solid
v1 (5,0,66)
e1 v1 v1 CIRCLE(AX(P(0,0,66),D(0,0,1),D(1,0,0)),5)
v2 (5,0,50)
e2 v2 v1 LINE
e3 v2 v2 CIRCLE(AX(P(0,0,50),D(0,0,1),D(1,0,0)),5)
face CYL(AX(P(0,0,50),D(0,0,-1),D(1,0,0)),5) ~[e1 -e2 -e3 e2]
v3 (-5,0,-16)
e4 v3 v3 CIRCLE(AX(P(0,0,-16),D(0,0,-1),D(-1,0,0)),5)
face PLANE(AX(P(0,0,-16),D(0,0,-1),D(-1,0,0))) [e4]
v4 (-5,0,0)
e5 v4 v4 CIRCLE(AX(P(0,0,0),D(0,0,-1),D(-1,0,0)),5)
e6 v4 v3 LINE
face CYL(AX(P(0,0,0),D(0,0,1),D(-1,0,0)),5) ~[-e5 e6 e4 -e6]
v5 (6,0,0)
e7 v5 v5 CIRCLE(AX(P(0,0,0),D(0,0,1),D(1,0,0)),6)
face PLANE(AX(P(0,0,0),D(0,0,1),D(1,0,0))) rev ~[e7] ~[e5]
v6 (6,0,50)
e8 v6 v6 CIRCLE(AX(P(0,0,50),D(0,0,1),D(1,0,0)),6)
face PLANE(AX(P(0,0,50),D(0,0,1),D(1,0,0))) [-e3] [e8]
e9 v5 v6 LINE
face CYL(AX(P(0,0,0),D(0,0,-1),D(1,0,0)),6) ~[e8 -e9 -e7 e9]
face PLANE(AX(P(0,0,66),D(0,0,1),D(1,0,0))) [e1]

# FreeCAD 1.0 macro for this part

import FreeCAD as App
import Part
import Sketcher
Q = App.Units.Quantity

doc = App.newDocument("Part")
body = doc.addObject("PartDesign::Body", "Body")

# Sketch on XY plane
sketch1 = body.newObject("Sketcher::SketchObject", "Sketch")
sketch1.AttachmentSupport = (doc.getObject("XY_Plane"), [""])
sketch1.MapMode = "FlatFace"
sketch1.addGeometry(Part.Circle(App.Vector(0, 0, 0), App.Vector(0, 0, 1), 6), False)
sketch1.addConstraint([
    Sketcher.Constraint("Coincident", 0, 3, -1, 1),
    Sketcher.Constraint("Diameter", 0, Q("12 mm")),
])
pad1 = body.newObject("PartDesign::Pad", "Pad")
pad1.Profile = sketch1
pad1.Length = 50

# Sketch on XY plane
sketch2 = body.newObject("Sketcher::SketchObject", "Sketch001")
sketch2.AttachmentSupport = (doc.getObject("XY_Plane"), [""])
sketch2.MapMode = "FlatFace"
sketch2.AttachmentOffset = App.Placement(App.Vector(0, 0, 50), App.Rotation())
sketch2.addGeometry(Part.Circle(App.Vector(0, 0, 0), App.Vector(0, 0, 1), 5), False)
sketch2.addConstraint([
    Sketcher.Constraint("Coincident", 0, 3, -1, 1),
    Sketcher.Constraint("Diameter", 0, Q("10 mm")),
])
pad2 = body.newObject("PartDesign::Pad", "Pad001")
pad2.Profile = sketch2
pad2.Length = 16

# Sketch on XY plane
sketch3 = body.newObject("Sketcher::SketchObject", "Sketch002")
sketch3.AttachmentSupport = (doc.getObject("XY_Plane"), [""])
sketch3.MapMode = "FlatFace"
sketch3.addGeometry(Part.Circle(App.Vector(0, 0, 0), App.Vector(0, 0, 1), 5), False)
sketch3.addConstraint([
    Sketcher.Constraint("Coincident", 0, 3, -1, 1),
    Sketcher.Constraint("Diameter", 0, Q("10 mm")),
])
pad3 = body.newObject("PartDesign::Pad", "Pad002")
pad3.Profile = sketch3
pad3.Length = 16
pad3.Reversed = True

doc.recompute()
